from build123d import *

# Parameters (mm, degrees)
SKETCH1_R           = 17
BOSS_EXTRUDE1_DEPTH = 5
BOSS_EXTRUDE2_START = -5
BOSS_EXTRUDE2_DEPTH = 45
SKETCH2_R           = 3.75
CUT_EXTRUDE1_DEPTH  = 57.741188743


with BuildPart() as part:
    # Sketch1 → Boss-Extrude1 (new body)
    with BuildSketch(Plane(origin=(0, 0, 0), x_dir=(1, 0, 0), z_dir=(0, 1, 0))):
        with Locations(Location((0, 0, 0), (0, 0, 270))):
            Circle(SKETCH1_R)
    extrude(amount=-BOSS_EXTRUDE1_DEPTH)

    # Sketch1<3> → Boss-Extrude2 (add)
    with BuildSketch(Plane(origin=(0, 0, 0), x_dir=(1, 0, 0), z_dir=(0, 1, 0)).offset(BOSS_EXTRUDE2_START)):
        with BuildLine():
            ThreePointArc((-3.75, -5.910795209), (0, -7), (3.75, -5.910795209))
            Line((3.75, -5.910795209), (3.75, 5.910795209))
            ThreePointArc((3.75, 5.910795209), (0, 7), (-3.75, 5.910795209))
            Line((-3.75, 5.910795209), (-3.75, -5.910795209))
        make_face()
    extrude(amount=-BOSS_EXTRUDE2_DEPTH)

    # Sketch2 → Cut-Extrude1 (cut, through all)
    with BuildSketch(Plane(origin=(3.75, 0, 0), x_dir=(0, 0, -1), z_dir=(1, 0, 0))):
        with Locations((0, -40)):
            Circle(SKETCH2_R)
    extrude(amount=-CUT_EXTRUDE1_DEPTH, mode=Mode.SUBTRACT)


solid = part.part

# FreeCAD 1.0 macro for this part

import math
import FreeCAD as App
import Part
import Sketcher
Q = App.Units.Quantity

doc = App.newDocument("Part")
body = doc.addObject("PartDesign::Body", "Body")

# Sketch on XZ plane
sketch1 = body.newObject("Sketcher::SketchObject", "Sketch")
sketch1.AttachmentSupport = (doc.getObject("XZ_Plane"), [""])
sketch1.MapMode = "FlatFace"
sketch1.addGeometry(Part.Circle(App.Vector(0, 0, 0), App.Vector(0, 0, 1), 17), False)
sketch1.addConstraint([
    Sketcher.Constraint("Coincident", 0, 3, -1, 1),
    Sketcher.Constraint("Diameter", 0, Q("34 mm")),
])
pad1 = body.newObject("PartDesign::Pad", "Pad")
pad1.Profile = sketch1
pad1.Length = 5

# Sketch on XZ plane
sketch2 = body.newObject("Sketcher::SketchObject", "Sketch001")
sketch2.AttachmentSupport = (doc.getObject("XZ_Plane"), [""])
sketch2.MapMode = "FlatFace"
sketch2.AttachmentOffset = App.Placement(App.Vector(0, 0, 5), App.Rotation())
sketch2.addGeometry([
    Part.ArcOfCircle(Part.Circle(App.Vector(0, 0, 0), App.Vector(0, 0, 1), 7), math.radians(58), math.radians(122)),
    Part.LineSegment(App.Vector(4, 6, 0), App.Vector(4, -6, 0)),
    Part.ArcOfCircle(Part.Circle(App.Vector(0, 0, 0), App.Vector(0, 0, 1), 7), math.radians(-122), math.radians(-58)),
    Part.LineSegment(App.Vector(-4, -6, 0), App.Vector(-4, 6, 0)),
], False)
sketch2.addConstraint([
    Sketcher.Constraint("Coincident", 0, 1, 1, 1),
    Sketcher.Constraint("Coincident", 1, 2, 2, 2),
    Sketcher.Constraint("Coincident", 2, 1, 3, 1),
    Sketcher.Constraint("Coincident", 3, 2, 0, 2),
    Sketcher.Constraint("Vertical", 1),
    Sketcher.Constraint("Vertical", 3),
    Sketcher.Constraint("Coincident", 0, 3, -1, 1),
    Sketcher.Constraint("Coincident", 2, 3, -1, 1),
    Sketcher.Constraint("Equal", 0, 2),
    Sketcher.Constraint("Horizontal", 1, 2, 2, 1),
    Sketcher.Constraint("Radius", 0, Q("7 mm")),
    Sketcher.Constraint("DistanceX", 2, 1, 1, 2, Q("7.5 mm")),
])
pad2 = body.newObject("PartDesign::Pad", "Pad001")
pad2.Profile = sketch2
pad2.Length = 45

# Sketch on YZ plane
sketch3 = body.newObject("Sketcher::SketchObject", "Sketch002")
sketch3.AttachmentSupport = (doc.getObject("YZ_Plane"), [""])
sketch3.MapMode = "FlatFace"
sketch3.AttachmentOffset = App.Placement(App.Vector(0, 0, 3.75), App.Rotation())
sketch3.addGeometry(Part.Circle(App.Vector(-40, 0, 0), App.Vector(0, 0, 1), 3.8), False)
sketch3.addConstraint([
    Sketcher.Constraint("PointOnObject", 0, 3, -1),
    Sketcher.Constraint("Diameter", 0, Q("7.5 mm")),
    Sketcher.Constraint("DistanceX", 0, 3, -1, 1, Q("40 mm")),
])
pocket1 = body.newObject("PartDesign::Pocket", "Pocket")
pocket1.Profile = sketch3
pocket1.Type = "ThroughAll"

doc.recompute()
